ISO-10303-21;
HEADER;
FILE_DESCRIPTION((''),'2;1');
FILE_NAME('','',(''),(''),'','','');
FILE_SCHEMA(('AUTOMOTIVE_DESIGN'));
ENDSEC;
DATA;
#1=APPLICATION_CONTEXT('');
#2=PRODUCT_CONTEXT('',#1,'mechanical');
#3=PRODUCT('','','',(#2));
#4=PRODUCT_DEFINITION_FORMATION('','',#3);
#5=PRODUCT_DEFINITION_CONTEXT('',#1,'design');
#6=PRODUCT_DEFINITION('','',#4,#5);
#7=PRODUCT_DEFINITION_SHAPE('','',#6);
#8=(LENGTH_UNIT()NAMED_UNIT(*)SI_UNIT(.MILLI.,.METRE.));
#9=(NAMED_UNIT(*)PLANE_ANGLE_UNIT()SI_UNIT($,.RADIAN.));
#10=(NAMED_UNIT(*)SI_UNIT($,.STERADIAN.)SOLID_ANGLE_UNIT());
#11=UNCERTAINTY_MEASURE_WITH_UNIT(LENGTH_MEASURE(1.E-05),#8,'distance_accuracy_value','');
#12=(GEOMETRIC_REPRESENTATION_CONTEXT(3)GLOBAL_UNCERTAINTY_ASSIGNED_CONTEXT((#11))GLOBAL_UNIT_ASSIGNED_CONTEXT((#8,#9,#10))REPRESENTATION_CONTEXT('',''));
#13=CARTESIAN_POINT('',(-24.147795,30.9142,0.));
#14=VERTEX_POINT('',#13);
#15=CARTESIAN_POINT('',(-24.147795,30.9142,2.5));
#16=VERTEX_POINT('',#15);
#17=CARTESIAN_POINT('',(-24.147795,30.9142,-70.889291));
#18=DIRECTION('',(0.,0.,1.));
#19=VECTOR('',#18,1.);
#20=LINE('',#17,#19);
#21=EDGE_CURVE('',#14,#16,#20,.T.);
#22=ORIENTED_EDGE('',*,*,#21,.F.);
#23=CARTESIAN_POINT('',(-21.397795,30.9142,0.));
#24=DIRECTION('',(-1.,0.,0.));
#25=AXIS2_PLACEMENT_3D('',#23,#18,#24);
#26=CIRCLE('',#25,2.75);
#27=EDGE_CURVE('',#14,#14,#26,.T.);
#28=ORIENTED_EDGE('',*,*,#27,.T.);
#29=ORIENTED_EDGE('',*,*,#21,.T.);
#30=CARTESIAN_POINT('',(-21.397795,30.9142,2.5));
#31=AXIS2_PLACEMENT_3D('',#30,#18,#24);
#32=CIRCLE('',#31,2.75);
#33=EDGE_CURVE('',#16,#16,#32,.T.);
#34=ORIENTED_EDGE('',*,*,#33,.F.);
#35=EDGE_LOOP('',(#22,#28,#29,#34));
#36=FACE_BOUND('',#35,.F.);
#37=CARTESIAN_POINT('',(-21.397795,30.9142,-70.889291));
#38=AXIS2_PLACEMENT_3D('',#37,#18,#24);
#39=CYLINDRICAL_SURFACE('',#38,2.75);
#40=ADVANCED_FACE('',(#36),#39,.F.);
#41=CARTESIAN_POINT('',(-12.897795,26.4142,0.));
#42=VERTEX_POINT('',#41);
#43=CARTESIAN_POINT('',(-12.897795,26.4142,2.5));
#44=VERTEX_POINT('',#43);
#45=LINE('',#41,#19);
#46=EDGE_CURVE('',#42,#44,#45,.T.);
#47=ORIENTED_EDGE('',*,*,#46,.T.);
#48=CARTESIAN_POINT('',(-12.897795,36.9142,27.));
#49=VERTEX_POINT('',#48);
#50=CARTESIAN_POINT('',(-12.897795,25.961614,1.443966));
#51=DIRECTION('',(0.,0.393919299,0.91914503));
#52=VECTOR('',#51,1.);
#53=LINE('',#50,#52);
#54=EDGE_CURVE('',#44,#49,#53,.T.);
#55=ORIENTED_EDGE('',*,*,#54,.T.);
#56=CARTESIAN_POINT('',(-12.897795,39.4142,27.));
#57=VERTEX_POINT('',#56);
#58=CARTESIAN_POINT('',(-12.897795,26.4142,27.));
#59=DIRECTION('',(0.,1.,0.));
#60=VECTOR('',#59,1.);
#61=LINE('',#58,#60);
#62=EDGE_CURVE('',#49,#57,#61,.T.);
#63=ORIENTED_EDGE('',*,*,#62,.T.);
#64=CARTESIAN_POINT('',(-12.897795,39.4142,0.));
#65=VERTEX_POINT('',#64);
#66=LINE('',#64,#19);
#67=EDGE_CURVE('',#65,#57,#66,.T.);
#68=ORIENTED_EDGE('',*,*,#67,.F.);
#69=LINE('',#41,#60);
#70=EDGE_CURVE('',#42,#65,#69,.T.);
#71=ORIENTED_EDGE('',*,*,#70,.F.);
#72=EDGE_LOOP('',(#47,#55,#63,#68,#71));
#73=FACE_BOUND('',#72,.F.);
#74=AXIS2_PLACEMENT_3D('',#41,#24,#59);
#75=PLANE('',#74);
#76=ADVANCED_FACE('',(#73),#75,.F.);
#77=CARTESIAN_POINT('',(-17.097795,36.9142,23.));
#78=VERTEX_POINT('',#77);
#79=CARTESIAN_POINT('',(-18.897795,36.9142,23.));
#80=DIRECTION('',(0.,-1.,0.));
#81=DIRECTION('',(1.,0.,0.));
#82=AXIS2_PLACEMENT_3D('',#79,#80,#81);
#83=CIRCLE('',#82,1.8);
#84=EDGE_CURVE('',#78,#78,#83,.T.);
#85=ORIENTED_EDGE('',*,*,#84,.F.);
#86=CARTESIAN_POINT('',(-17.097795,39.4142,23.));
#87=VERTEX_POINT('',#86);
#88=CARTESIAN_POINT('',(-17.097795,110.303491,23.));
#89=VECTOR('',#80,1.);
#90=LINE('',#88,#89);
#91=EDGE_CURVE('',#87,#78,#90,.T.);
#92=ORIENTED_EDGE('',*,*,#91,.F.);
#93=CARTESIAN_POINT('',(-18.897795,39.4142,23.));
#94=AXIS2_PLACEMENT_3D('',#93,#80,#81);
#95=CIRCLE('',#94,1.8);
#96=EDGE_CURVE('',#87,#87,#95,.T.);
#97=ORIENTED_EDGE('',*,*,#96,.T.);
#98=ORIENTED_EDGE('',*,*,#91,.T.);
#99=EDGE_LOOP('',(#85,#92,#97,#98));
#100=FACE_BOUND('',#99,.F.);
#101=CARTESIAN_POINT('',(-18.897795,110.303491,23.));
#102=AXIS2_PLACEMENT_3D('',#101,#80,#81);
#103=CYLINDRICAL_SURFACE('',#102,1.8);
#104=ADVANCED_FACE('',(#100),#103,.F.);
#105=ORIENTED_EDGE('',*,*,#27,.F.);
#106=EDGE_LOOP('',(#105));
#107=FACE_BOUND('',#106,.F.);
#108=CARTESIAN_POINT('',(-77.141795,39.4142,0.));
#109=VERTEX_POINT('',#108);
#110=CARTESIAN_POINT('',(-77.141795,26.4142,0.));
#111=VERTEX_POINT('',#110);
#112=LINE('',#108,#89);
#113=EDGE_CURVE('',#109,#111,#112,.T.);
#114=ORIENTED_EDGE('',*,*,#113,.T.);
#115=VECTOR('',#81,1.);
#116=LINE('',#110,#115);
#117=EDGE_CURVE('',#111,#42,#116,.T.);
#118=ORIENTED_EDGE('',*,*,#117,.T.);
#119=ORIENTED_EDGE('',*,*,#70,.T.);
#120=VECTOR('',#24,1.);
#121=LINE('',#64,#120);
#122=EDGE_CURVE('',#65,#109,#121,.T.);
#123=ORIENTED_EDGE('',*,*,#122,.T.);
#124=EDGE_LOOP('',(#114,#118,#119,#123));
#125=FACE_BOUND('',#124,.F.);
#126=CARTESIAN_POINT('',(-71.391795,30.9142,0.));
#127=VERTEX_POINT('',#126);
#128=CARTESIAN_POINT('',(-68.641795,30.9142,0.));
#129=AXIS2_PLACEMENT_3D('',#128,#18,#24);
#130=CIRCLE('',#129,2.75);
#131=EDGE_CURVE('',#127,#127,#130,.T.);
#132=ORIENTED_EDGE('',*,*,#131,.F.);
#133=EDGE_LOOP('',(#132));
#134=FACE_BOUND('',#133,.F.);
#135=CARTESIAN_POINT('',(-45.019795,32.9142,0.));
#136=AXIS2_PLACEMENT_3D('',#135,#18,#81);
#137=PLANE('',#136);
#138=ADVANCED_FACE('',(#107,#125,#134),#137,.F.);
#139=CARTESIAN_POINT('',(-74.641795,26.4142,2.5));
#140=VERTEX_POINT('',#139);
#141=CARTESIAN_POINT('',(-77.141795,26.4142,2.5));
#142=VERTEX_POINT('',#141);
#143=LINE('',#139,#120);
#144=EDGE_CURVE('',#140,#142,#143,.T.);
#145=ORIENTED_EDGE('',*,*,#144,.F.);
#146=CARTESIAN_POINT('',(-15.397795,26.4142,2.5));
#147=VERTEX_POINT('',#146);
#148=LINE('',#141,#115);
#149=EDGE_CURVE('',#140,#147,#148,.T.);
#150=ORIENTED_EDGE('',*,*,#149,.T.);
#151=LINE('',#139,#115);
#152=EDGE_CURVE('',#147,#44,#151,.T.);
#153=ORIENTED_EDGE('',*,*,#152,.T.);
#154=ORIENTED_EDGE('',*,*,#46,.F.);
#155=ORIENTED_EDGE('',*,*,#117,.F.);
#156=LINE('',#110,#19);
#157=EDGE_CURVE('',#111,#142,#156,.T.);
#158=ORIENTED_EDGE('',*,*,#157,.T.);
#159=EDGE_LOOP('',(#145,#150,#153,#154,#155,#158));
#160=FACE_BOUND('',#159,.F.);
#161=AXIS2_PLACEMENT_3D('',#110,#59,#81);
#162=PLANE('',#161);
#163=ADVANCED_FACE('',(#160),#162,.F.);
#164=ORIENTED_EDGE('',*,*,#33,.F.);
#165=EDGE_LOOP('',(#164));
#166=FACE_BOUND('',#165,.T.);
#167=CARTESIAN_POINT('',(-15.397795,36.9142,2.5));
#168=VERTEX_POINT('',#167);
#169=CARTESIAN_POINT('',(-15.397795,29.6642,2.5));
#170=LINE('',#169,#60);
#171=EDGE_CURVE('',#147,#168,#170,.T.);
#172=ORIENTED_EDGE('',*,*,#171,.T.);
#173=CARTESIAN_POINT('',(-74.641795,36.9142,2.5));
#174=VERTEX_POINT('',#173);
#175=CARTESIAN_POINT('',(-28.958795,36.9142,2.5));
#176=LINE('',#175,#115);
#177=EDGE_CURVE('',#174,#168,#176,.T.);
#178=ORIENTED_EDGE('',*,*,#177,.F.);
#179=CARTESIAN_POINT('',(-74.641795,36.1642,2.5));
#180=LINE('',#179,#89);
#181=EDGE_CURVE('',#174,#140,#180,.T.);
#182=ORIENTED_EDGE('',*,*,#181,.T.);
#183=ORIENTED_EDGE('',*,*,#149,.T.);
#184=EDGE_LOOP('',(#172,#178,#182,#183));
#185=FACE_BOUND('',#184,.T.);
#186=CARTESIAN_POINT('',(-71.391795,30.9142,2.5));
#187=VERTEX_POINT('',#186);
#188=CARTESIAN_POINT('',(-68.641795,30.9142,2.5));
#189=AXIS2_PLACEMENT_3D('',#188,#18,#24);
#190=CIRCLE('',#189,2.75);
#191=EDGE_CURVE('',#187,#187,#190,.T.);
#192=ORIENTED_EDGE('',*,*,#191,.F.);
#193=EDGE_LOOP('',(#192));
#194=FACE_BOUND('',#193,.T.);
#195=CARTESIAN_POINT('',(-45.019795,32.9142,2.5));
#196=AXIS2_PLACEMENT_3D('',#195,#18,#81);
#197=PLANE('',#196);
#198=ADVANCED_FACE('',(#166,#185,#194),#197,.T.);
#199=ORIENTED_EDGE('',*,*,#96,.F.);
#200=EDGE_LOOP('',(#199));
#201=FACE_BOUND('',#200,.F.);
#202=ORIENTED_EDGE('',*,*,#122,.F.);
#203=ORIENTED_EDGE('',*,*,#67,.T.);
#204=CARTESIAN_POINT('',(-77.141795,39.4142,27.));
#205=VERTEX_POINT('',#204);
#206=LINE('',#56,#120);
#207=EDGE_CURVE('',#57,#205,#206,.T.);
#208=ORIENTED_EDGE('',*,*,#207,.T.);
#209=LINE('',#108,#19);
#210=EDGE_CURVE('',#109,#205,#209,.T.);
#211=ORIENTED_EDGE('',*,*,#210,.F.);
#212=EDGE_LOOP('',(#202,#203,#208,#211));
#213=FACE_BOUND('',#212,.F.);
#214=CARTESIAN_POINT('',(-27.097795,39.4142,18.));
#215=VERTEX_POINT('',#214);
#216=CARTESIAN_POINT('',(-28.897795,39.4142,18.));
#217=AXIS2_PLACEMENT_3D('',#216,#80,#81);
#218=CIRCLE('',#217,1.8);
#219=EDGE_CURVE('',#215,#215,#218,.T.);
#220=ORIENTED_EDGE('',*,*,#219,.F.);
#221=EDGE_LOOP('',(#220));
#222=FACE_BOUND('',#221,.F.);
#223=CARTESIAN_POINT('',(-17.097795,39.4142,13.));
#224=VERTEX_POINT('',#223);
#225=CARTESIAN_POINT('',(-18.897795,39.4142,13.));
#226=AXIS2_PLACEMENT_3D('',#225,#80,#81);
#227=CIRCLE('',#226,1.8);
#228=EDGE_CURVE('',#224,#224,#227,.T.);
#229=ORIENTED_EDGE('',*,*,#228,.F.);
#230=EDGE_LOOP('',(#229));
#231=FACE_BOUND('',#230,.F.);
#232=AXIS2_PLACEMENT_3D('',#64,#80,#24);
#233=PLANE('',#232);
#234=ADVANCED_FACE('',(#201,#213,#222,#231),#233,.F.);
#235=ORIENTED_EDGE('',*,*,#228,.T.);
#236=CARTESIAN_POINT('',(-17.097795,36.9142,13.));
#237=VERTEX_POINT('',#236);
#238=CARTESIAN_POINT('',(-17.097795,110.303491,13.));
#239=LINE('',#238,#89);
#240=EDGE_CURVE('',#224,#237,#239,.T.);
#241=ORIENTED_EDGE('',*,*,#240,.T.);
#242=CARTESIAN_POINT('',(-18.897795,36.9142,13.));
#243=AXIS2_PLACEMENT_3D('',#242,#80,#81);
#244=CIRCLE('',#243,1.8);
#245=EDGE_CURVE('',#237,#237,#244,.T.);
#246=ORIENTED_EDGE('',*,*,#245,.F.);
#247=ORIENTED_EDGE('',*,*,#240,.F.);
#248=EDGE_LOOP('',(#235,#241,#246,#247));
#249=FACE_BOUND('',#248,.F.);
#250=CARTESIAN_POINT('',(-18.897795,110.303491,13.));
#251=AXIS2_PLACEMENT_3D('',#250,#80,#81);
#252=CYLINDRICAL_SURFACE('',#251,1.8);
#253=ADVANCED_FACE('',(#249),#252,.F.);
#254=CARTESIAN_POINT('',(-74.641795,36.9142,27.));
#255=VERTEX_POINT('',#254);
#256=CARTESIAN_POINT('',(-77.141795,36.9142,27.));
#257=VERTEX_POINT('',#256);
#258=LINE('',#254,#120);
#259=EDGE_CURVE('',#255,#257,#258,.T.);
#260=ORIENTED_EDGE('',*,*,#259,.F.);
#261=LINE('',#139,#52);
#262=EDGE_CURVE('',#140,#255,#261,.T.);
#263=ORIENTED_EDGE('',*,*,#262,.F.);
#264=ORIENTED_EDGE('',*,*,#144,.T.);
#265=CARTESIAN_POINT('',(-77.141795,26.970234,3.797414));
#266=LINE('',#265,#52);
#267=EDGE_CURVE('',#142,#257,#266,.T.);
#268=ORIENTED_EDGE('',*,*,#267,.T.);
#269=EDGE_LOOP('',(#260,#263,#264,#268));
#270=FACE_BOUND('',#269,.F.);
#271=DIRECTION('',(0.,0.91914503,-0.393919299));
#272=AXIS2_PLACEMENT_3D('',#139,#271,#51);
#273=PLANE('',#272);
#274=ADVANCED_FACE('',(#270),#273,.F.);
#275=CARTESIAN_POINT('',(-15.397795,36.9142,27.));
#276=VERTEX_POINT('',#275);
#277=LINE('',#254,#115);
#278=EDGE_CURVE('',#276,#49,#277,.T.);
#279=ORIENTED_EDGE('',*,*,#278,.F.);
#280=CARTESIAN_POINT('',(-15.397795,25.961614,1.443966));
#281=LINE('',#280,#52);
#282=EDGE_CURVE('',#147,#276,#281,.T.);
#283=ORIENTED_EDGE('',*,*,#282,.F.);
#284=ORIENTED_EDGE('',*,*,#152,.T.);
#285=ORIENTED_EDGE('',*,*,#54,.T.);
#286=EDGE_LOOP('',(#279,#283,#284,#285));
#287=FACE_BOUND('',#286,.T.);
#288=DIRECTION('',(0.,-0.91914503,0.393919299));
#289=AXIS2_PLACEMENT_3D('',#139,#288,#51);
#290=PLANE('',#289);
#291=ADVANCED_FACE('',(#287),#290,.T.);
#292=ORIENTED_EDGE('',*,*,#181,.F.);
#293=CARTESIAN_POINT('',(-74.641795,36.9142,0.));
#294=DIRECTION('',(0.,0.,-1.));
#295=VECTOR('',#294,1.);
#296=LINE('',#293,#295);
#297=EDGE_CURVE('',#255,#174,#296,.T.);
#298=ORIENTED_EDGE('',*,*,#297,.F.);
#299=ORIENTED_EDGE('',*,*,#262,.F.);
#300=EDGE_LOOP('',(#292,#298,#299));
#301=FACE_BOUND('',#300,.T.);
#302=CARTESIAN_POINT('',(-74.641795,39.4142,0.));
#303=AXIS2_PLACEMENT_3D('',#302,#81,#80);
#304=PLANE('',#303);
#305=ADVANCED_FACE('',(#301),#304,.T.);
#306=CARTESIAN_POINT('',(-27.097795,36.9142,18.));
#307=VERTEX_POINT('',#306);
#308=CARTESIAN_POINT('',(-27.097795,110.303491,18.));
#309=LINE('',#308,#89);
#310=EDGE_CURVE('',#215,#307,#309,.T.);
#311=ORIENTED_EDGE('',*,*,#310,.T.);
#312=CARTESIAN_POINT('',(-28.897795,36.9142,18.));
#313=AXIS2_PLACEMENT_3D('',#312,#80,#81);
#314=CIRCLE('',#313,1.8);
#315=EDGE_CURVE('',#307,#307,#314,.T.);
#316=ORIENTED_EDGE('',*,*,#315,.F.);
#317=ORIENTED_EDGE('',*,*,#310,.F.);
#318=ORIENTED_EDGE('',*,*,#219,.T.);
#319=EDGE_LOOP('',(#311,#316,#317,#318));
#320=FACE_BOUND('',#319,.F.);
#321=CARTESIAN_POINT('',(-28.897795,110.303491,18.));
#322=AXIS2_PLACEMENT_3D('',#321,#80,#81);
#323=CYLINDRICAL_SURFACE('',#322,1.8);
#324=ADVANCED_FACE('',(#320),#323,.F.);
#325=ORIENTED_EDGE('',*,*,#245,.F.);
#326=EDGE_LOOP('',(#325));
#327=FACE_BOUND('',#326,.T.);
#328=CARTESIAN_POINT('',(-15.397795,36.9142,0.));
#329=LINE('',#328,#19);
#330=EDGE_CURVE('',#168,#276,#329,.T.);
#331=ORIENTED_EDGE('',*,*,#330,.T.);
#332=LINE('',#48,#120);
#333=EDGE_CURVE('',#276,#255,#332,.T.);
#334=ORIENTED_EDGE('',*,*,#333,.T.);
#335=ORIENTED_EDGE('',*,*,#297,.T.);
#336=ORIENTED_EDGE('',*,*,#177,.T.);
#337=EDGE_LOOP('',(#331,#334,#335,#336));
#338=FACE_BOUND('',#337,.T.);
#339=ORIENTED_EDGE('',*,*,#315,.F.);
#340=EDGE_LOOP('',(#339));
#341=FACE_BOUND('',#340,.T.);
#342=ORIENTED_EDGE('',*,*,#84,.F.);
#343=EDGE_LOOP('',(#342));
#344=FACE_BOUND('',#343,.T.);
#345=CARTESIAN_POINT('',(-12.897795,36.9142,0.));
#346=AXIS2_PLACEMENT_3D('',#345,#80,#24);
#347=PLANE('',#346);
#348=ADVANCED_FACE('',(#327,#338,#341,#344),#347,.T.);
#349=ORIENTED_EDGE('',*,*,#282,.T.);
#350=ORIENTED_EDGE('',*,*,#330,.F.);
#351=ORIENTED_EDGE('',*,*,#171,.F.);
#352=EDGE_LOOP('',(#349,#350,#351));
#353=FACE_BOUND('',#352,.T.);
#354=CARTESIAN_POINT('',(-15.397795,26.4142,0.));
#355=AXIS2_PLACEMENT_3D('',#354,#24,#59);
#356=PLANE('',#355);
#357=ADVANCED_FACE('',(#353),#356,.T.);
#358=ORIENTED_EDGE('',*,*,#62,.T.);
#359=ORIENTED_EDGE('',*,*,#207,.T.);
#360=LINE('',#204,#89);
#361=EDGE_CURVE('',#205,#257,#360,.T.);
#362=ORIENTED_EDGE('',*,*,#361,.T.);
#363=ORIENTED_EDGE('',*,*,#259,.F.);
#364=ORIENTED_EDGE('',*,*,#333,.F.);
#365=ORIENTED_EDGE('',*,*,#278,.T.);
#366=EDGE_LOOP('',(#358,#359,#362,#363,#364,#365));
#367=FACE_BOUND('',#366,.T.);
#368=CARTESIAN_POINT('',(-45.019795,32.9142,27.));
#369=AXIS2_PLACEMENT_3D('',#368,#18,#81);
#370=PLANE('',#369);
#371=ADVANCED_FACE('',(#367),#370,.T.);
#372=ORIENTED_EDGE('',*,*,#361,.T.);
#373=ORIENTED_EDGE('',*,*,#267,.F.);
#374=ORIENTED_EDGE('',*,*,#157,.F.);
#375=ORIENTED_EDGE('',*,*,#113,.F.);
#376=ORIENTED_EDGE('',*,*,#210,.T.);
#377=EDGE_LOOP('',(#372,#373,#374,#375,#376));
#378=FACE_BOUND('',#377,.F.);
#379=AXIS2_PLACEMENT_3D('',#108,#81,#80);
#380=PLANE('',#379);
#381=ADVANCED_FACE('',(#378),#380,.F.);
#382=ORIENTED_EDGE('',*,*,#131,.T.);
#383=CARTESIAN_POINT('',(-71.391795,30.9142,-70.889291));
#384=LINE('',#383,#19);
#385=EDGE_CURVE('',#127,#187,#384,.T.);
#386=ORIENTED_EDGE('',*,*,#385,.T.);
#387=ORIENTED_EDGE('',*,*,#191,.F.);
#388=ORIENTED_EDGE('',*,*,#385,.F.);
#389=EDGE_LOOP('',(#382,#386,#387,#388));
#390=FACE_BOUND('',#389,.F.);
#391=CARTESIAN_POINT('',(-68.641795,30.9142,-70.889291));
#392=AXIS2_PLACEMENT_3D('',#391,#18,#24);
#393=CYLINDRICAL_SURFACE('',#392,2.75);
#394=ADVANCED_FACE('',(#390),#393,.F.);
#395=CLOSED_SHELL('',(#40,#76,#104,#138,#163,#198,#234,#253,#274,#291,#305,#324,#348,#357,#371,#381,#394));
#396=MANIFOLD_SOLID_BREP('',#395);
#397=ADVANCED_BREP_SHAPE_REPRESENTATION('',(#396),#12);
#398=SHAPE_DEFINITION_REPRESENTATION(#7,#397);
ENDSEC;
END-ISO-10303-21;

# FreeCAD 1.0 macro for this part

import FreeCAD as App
import Part
import Sketcher


def faces_at(feature, points):
    """Names of the faces that lie closest to the given points."""
    faces = feature.Shape.Faces
    near = lambda p: min(range(len(faces)), key=lambda i: faces[i].distToShape(Part.Vertex(*p))[0])
    return sorted({f"Face{near(p) + 1}" for p in points})


def add_polygon(sketch, points):
    """Adds a closed chain of lines whose ends are joined by coincident constraints."""
    first, n = sketch.GeometryCount, len(points)
    for a, b in zip(points, points[1:] + points[:1]):
        sketch.addGeometry(Part.LineSegment(App.Vector(*a, 0), App.Vector(*b, 0)), False)
    for i in range(n):
        sketch.addConstraint(Sketcher.Constraint("Coincident", first + i, 2, first + (i + 1) % n, 1))

doc = App.newDocument("Part")
body = doc.addObject("PartDesign::Body", "Body")

sketch1 = body.newObject("Sketcher::SketchObject", "Sketch")
sketch1.AttachmentSupport = (doc.getObject("XY_Plane"), [""])
sketch1.MapMode = "FlatFace"
add_polygon(sketch1, [(-77, 26), (-13, 26), (-13, 39), (-77, 39)])
sketch1.addConstraint([
    Sketcher.Constraint("Horizontal", 0),
    Sketcher.Constraint("Vertical", 1),
    Sketcher.Constraint("Horizontal", 2),
    Sketcher.Constraint("Vertical", 3),
    Sketcher.Constraint("DistanceY", 1, 1, 1, 2, 13.0),
    Sketcher.Constraint("DistanceX", 0, 1, 0, 2, 64.244),
    Sketcher.Constraint("DistanceY", -1, 1, 0, 2, 26.4142),
    Sketcher.Constraint("DistanceX", 0, 2, -1, 1, 12.897795),
])
pad1 = body.newObject("PartDesign::Pad", "Pad")
pad1.Profile = sketch1
pad1.Length = 27
doc.recompute()

thickness = body.newObject("PartDesign::Thickness", "Thickness")
thickness.Base = (pad1, faces_at(pad1, [(-45.02, 32.914, 27), (-45.02, 26.414, 13.5)]))
thickness.Value = 2.5
thickness.Reversed = True
thickness.Join = "Arc"

sketch2 = body.newObject("Sketcher::SketchObject", "Sketch001")
sketch2.AttachmentSupport = (doc.getObject("YZ_Plane"), [""])
sketch2.MapMode = "FlatFace"
sketch2.AttachmentOffset = App.Placement(App.Vector(0, 0, -74.641795), App.Rotation())
add_polygon(sketch2, [(26, 27), (26, 2), (37, 27)])
sketch2.addConstraint([
    Sketcher.Constraint("Vertical", 0),
    Sketcher.Constraint("Horizontal", 2),
    Sketcher.Constraint("DistanceX", 2, 2, 2, 1, 10.5),
    Sketcher.Constraint("DistanceY", 0, 2, 0, 1, 24.5),
    Sketcher.Constraint("DistanceY", -1, 1, 1, 2, 27.0),
    Sketcher.Constraint("DistanceX", -1, 1, 0, 2, 26.4142),
])
pocket1 = body.newObject("PartDesign::Pocket", "Pocket")
pocket1.Profile = sketch2
pocket1.Type = "ThroughAll"
pocket1.Midplane = True

sketch3 = body.newObject("Sketcher::SketchObject", "Sketch002")
sketch3.AttachmentSupport = (doc.getObject("XY_Plane"), [""])
sketch3.MapMode = "FlatFace"
sketch3.addGeometry([
    Part.Circle(App.Vector(-68.6, 30.9, 0), App.Vector(0, 0, 1), 2.8),
    Part.Circle(App.Vector(-21.4, 30.9, 0), App.Vector(0, 0, 1), 2.8),
], False)
sketch3.addConstraint([
    Sketcher.Constraint("Equal", 0, 1),
    Sketcher.Constraint("Horizontal", 0, 3, 1, 3),
    Sketcher.Constraint("Diameter", 0, 5.5),
    Sketcher.Constraint("DistanceX", 0, 3, 1, 3, 47.244),
    Sketcher.Constraint("DistanceY", -1, 1, 0, 3, 30.9142),
    Sketcher.Constraint("DistanceX", 0, 3, -1, 1, 68.641795),
])
doc.recompute()
hole = body.newObject("PartDesign::Hole", "Hole")
hole.Profile = sketch3
hole.ThreadType = "None"
hole.Diameter = 5.5
hole.DepthType = "ThroughAll"
hole.Reversed = True

sketch4 = body.newObject("Sketcher::SketchObject", "Sketch003")
sketch4.AttachmentSupport = (doc.getObject("XZ_Plane"), [""])
sketch4.MapMode = "FlatFace"
sketch4.AttachmentOffset = App.Placement(App.Vector(0, 0, -39.4142), App.Rotation())
sketch4.addGeometry([
    Part.Circle(App.Vector(-18.9, 13, 0), App.Vector(0, 0, 1), 1.8),
    Part.Circle(App.Vector(-18.9, 23, 0), App.Vector(0, 0, 1), 1.8),
    Part.Circle(App.Vector(-28.9, 18, 0), App.Vector(0, 0, 1), 1.8),
], False)
sketch4.addConstraint([
    Sketcher.Constraint("Equal", 0, 1),
    Sketcher.Constraint("Equal", 1, 2),
    Sketcher.Constraint("Vertical", 0, 3, 1, 3),
    Sketcher.Constraint("Diameter", 0, 3.6),
    Sketcher.Constraint("DistanceY", -1, 1, 0, 3, 13.0),
    Sketcher.Constraint("DistanceY", -1, 1, 1, 3, 23.0),
    Sketcher.Constraint("DistanceY", -1, 1, 2, 3, 18.0),
    Sketcher.Constraint("DistanceX", 2, 3, 0, 3, 10.0),
    Sketcher.Constraint("DistanceX", 0, 3, -1, 1, 18.897795),
])
doc.recompute()
hole2 = body.newObject("PartDesign::Hole", "Hole001")
hole2.Profile = sketch4
hole2.ThreadType = "None"
hole2.Diameter = 3.6
hole2.DepthType = "ThroughAll"
hole2.Reversed = True

doc.recompute()
